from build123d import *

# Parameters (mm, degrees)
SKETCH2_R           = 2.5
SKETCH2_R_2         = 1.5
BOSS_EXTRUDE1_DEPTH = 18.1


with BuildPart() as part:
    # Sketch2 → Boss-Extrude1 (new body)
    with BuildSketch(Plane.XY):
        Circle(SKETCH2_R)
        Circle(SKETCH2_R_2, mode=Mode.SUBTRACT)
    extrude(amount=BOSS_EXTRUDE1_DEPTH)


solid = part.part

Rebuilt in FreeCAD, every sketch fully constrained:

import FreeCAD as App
import Part
import Sketcher

V = App.Vector

doc = App.newDocument("Part")
body = doc.addObject("PartDesign::Body", "Body")

# Sketch on XY plane
sketch1 = body.newObject("Sketcher::SketchObject", "Sketch")
sketch1.AttachmentSupport = (doc.getObject("XY_Plane"), [""])
sketch1.MapMode = "FlatFace"
sketch1.addGeometry([
    Part.Circle(V(0, 0, 0), V(0, 0, 1), 2.5),
    Part.Circle(V(0, 0, 0), V(0, 0, 1), 1.5),
], False)
sketch1.addConstraint([
    Sketcher.Constraint("Coincident", 0, 3, -1, 1),
    Sketcher.Constraint("Coincident", 1, 3, -1, 1),
    Sketcher.Constraint("Diameter", 0, 5.0),
    Sketcher.Constraint("Diameter", 1, 3.0),
])
pad1 = body.newObject("PartDesign::Pad", "Pad")
pad1.Profile = sketch1
pad1.Length = 18.1

doc.recompute()
